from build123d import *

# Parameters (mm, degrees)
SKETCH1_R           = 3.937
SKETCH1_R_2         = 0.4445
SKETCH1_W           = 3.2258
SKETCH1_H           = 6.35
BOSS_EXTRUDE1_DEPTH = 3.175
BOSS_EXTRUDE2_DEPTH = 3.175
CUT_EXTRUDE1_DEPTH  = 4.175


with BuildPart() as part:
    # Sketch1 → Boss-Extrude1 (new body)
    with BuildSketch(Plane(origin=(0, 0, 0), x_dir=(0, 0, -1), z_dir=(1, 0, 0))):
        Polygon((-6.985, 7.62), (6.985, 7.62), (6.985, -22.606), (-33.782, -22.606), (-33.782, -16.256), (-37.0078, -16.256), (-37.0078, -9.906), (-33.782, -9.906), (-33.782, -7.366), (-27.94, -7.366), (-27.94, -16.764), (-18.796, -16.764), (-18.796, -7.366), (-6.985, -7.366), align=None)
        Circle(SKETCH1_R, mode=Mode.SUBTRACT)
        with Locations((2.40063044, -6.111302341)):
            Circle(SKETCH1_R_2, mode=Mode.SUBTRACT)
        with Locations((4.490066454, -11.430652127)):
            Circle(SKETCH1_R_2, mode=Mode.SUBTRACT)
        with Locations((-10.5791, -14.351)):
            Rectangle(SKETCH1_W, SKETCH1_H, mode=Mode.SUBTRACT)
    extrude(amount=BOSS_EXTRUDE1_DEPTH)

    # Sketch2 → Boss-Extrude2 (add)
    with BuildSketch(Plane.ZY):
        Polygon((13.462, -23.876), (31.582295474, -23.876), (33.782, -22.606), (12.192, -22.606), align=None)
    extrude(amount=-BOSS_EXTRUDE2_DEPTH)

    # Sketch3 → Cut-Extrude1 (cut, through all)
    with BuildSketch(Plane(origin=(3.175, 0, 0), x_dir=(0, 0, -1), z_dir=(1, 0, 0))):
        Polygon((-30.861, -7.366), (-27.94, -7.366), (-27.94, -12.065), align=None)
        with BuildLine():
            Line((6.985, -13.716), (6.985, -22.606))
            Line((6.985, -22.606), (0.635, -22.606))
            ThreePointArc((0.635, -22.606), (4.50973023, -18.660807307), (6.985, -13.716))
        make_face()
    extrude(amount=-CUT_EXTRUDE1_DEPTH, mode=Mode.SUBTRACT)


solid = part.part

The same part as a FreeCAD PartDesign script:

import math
import FreeCAD as App
import Part
import Sketcher
Q = App.Units.Quantity

doc = App.newDocument("Part")
params = doc.addObject("Spreadsheet::Sheet", "Params")
for row, (alias, value) in enumerate([
    ("sketch1_diameter", "0.31 in"),
    ("sketch1_diameter2", "0.035 in"),
    ("sketch1_width", "0.1 in"),
    ("sketch1_width2", "0.59 in"),
    ("sketch1_width3", "0.37 in"),
    ("pad1_length", "0.125 in"),
    ("sketch2_length", "0.1 in"),
    ("sketch2_height", "0.85 in"),
    ("pad2_length", "0.125 in"),
    ("sketch3_radius", "0.7 in"),
    ("sketch3_width", "0.35 in"),
    ("sketch3_height", "0.25 in"),
    ("sketch3_width2", "0.185 in"),
    ("sketch3_height2", "0.115 in"),
], start=1):
    params.set(f"A{row}", alias)
    params.set(f"B{row}", "=" + value)
    params.setAlias(f"B{row}", alias)

body = doc.addObject("PartDesign::Body", "Body")

# Sketch on YZ plane
sketch1 = doc.addObject("Sketcher::SketchObject", "Sketch")
body.addObject(sketch1)
sketch1.AttachmentSupport = (doc.YZ_Plane, [""])
sketch1.MapMode = "FlatFace"
sketch1.addGeometry([
    Part.LineSegment(App.Vector(7.62, -6.99, 0), App.Vector(7.62, 6.99, 0)),  # 0
    Part.LineSegment(App.Vector(7.62, 6.99, 0), App.Vector(-7.37, 6.99, 0)),  # 1
    Part.LineSegment(App.Vector(-7.37, 6.99, 0), App.Vector(-7.37, 18.8, 0)),  # 2
    Part.LineSegment(App.Vector(-7.37, 18.8, 0), App.Vector(-16.76, 18.8, 0)),  # 3
    Part.LineSegment(App.Vector(-16.76, 18.8, 0), App.Vector(-16.76, 27.94, 0)),  # 4
    Part.LineSegment(App.Vector(-16.76, 27.94, 0), App.Vector(-7.37, 27.94, 0)),  # 5
    Part.LineSegment(App.Vector(-7.37, 27.94, 0), App.Vector(-7.37, 33.78, 0)),  # 6
    Part.LineSegment(App.Vector(-7.37, 33.78, 0), App.Vector(-9.91, 33.78, 0)),  # 7
    Part.LineSegment(App.Vector(-9.91, 33.78, 0), App.Vector(-9.91, 37.01, 0)),  # 8
    Part.LineSegment(App.Vector(-9.91, 37.01, 0), App.Vector(-16.26, 37.01, 0)),  # 9
    Part.LineSegment(App.Vector(-16.26, 37.01, 0), App.Vector(-16.26, 33.78, 0)),  # 10
    Part.LineSegment(App.Vector(-16.26, 33.78, 0), App.Vector(-22.61, 33.78, 0)),  # 11
    Part.LineSegment(App.Vector(-22.61, 33.78, 0), App.Vector(-22.61, -6.99, 0)),  # 12
    Part.LineSegment(App.Vector(-22.61, -6.99, 0), App.Vector(7.62, -6.99, 0)),  # 13
    Part.Circle(App.Vector(-11.43, -4.49, 0), App.Vector(0, 0, 1), 0.44),  # 14
    Part.LineSegment(App.Vector(-17.53, 12.19, 0), App.Vector(-11.18, 12.19, 0)),  # 15
    Part.LineSegment(App.Vector(-11.18, 12.19, 0), App.Vector(-11.18, 8.97, 0)),  # 16
    Part.LineSegment(App.Vector(-11.18, 8.97, 0), App.Vector(-17.53, 8.97, 0)),  # 17
    Part.LineSegment(App.Vector(-17.53, 8.97, 0), App.Vector(-17.53, 12.19, 0)),  # 18
    Part.Circle(App.Vector(-6.11, -2.4, 0), App.Vector(0, 0, 1), 0.44),  # 19
    Part.Circle(App.Vector(0, 0, 0), App.Vector(0, 0, 1), 3.94),  # 20
], False)
sketch1.addConstraint([
    Sketcher.Constraint("Coincident", 0, 2, 1, 1),
    Sketcher.Constraint("Coincident", 1, 2, 2, 1),
    Sketcher.Constraint("Coincident", 2, 2, 3, 1),
    Sketcher.Constraint("Coincident", 3, 2, 4, 1),
    Sketcher.Constraint("Coincident", 4, 2, 5, 1),
    Sketcher.Constraint("Coincident", 5, 2, 6, 1),
    Sketcher.Constraint("Coincident", 6, 2, 7, 1),
    Sketcher.Constraint("Coincident", 7, 2, 8, 1),
    Sketcher.Constraint("Coincident", 8, 2, 9, 1),
    Sketcher.Constraint("Coincident", 9, 2, 10, 1),
    Sketcher.Constraint("Coincident", 10, 2, 11, 1),
    Sketcher.Constraint("Coincident", 11, 2, 12, 1),
    Sketcher.Constraint("Coincident", 12, 2, 13, 1),
    Sketcher.Constraint("Coincident", 13, 2, 0, 1),
    Sketcher.Constraint("Coincident", 15, 2, 16, 1),
    Sketcher.Constraint("Coincident", 16, 2, 17, 1),
    Sketcher.Constraint("Coincident", 17, 2, 18, 1),
    Sketcher.Constraint("Coincident", 18, 2, 15, 1),
    Sketcher.Constraint("Vertical", 0),
    Sketcher.Constraint("Horizontal", 1),
    Sketcher.Constraint("Vertical", 2),
    Sketcher.Constraint("Horizontal", 3),
    Sketcher.Constraint("Vertical", 4),
    Sketcher.Constraint("Horizontal", 5),
    Sketcher.Constraint("Vertical", 6),
    Sketcher.Constraint("Horizontal", 7),
    Sketcher.Constraint("Vertical", 8),
    Sketcher.Constraint("Horizontal", 9),
    Sketcher.Constraint("Vertical", 10),
    Sketcher.Constraint("Horizontal", 11),
    Sketcher.Constraint("Vertical", 12),
    Sketcher.Constraint("Horizontal", 13),
    Sketcher.Constraint("Horizontal", 15),
    Sketcher.Constraint("Vertical", 16),
    Sketcher.Constraint("Horizontal", 17),
    Sketcher.Constraint("Vertical", 18),
    Sketcher.Constraint("Coincident", 20, 3, -1, 1),
    Sketcher.Constraint("Equal", 14, 19),
    Sketcher.Constraint("Horizontal", 7, 2, 10, 2),
    Sketcher.Constraint("Vertical", 2, 2, 5, 2),
    Sketcher.Constraint("Equal", 9, 11),
    Sketcher.Constraint("Equal", 11, 15),
    Sketcher.Constraint("Equal", 10, 16),
    Sketcher.Constraint("Diameter", 20, Q("0.31 in")),
    Sketcher.Constraint("Diameter", 14, Q("0.035 in")),
    Sketcher.Constraint("DistanceX", 7, 2, 7, 1, Q("0.1 in")),
    Sketcher.Constraint("DistanceX", 1, 2, 1, 1, Q("0.59 in")),
    Sketcher.Constraint("DistanceX", 3, 2, 3, 1, Q("0.37 in")),
    Sketcher.Constraint("DistanceX", 9, 2, 9, 1, Q("0.25 in")),
    Sketcher.Constraint("DistanceY", 0, 1, 0, 2, Q("0.55 in")),
    Sketcher.Constraint("DistanceY", 4, 1, 4, 2, Q("0.36 in")),
    Sketcher.Constraint("DistanceY", 6, 1, 6, 2, Q("0.23 in")),
    Sketcher.Constraint("DistanceX", -1, 1, 0, 2, Q("0.3 in")),
    Sketcher.Constraint("DistanceY", -1, 1, 4, 2, Q("1.1 in")),
    Sketcher.Constraint("DistanceX", 17, 2, 1, 2, Q("0.4 in")),
    Sketcher.Constraint("DistanceY", 2, 1, 2, 2, Q("0.465 in")),
    Sketcher.Constraint("DistanceY", 8, 1, 8, 2, Q("0.127 in")),
    Sketcher.Constraint("DistanceY", -1, 1, 15, 2, Q("0.48 in")),
    Sketcher.Constraint("DistanceY", 19, 3, -1, 1, 2.40063),
    Sketcher.Constraint("DistanceX", 14, 3, 19, 3, 5.31935),
    Sketcher.Constraint("DistanceX", 14, 3, -1, 1, 11.430652),
    Sketcher.Constraint("DistanceY", 14, 3, -1, 1, 4.490066),
])
sketch1.setExpression("Constraints[43]", "Params.sketch1_diameter")
sketch1.setExpression("Constraints[44]", "Params.sketch1_diameter2")
sketch1.setExpression("Constraints[45]", "Params.sketch1_width")
sketch1.setExpression("Constraints[46]", "Params.sketch1_width2")
sketch1.setExpression("Constraints[47]", "Params.sketch1_width3")
pad1 = doc.addObject("PartDesign::Pad", "Pad")
body.addObject(pad1)
pad1.Profile = sketch1
pad1.setExpression("Length", "Params.pad1_length")

# Sketch on YZ plane
sketch2 = doc.addObject("Sketcher::SketchObject", "Sketch001")
body.addObject(sketch2)
sketch2.AttachmentSupport = (doc.YZ_Plane, [""])
sketch2.MapMode = "FlatFace"
sketch2.addGeometry([
    Part.LineSegment(App.Vector(-23.9, 13.5, 0), App.Vector(-23.9, 31.6, 0)),
    Part.LineSegment(App.Vector(-23.9, 31.6, 0), App.Vector(-22.6, 33.8, 0)),
    Part.LineSegment(App.Vector(-22.6, 33.8, 0), App.Vector(-22.6, 12.2, 0)),
    Part.LineSegment(App.Vector(-22.6, 12.2, 0), App.Vector(-23.9, 13.5, 0)),
], False)
sketch2.addConstraint([
    Sketcher.Constraint("Coincident", 0, 2, 1, 1),
    Sketcher.Constraint("Coincident", 1, 2, 2, 1),
    Sketcher.Constraint("Coincident", 2, 2, 3, 1),
    Sketcher.Constraint("Coincident", 3, 2, 0, 1),
    Sketcher.Constraint("Vertical", 0),
    Sketcher.Constraint("Vertical", 2),
    Sketcher.Constraint("Angle", 1, Q("60 deg")),
    Sketcher.Constraint("Angle", 3, Q("135 deg")),
    Sketcher.Constraint("Distance", 1, Q("0.1 in")),
    Sketcher.Constraint("DistanceY", 2, 2, 2, 1, Q("0.85 in")),
    Sketcher.Constraint("DistanceX", 0, 2, -1, 1, Q("0.94 in")),
    Sketcher.Constraint("DistanceY", -1, 1, 1, 2, Q("1.33 in")),
])
sketch2.setExpression("Constraints[8]", "Params.sketch2_length")
sketch2.setExpression("Constraints[9]", "Params.sketch2_height")
pad2 = doc.addObject("PartDesign::Pad", "Pad001")
body.addObject(pad2)
pad2.Profile = sketch2
pad2.setExpression("Length", "Params.pad2_length")

# Sketch on YZ plane
sketch3 = doc.addObject("Sketcher::SketchObject", "Sketch002")
body.addObject(sketch3)
sketch3.AttachmentSupport = (doc.YZ_Plane, [""])
sketch3.MapMode = "FlatFace"
sketch3.AttachmentOffset = App.Placement(App.Vector(0, 0, 0.125 * 25.4), App.Rotation())
sketch3.addGeometry([
    Part.LineSegment(App.Vector(-7.4, 27.9, 0), App.Vector(-7.4, 30.9, 0)),  # 0
    Part.LineSegment(App.Vector(-7.4, 30.9, 0), App.Vector(-12.1, 27.9, 0)),  # 1
    Part.LineSegment(App.Vector(-12.1, 27.9, 0), App.Vector(-7.4, 27.9, 0)),  # 2
    Part.LineSegment(App.Vector(-22.6, -7, 0), App.Vector(-13.7, -7, 0)),  # 3
    Part.ArcOfCircle(Part.Circle(App.Vector(-8.3, 10, 0), App.Vector(0, 0, 1), 17.8), math.radians(-143), math.radians(-108)),  # 4
    Part.LineSegment(App.Vector(-22.6, -0.6, 0), App.Vector(-22.6, -7, 0)),  # 5
], False)
sketch3.addConstraint([
    Sketcher.Constraint("Coincident", 0, 2, 1, 1),
    Sketcher.Constraint("Coincident", 1, 2, 2, 1),
    Sketcher.Constraint("Coincident", 2, 2, 0, 1),
    Sketcher.Constraint("Coincident", 3, 2, 4, 2),
    Sketcher.Constraint("Coincident", 4, 1, 5, 1),
    Sketcher.Constraint("Coincident", 5, 2, 3, 1),
    Sketcher.Constraint("Vertical", 0),
    Sketcher.Constraint("Horizontal", 2),
    Sketcher.Constraint("Horizontal", 3),
    Sketcher.Constraint("Vertical", 5),
    Sketcher.Constraint("Radius", 4, Q("0.7 in")),
    Sketcher.Constraint("DistanceX", 3, 1, 3, 2, Q("0.35 in")),
    Sketcher.Constraint("DistanceY", 5, 2, 5, 1, Q("0.25 in")),
    Sketcher.Constraint("DistanceY", -1, 1, 1, 2, Q("1.1 in")),
    Sketcher.Constraint("DistanceX", 4, 1, 2, 2, Q("0.6 in")),
    Sketcher.Constraint("DistanceX", 2, 1, 2, 2, Q("0.185 in")),
    Sketcher.Constraint("DistanceY", 0, 1, 0, 2, Q("0.115 in")),
    Sketcher.Constraint("DistanceX", 0, 2, -1, 1, Q("0.29 in")),
    Sketcher.Constraint("DistanceY", 3, 2, 0, 2, Q("1.49 in")),
])
sketch3.setExpression("Constraints[10]", "Params.sketch3_radius")
sketch3.setExpression("Constraints[11]", "Params.sketch3_width")
sketch3.setExpression("Constraints[12]", "Params.sketch3_height")
sketch3.setExpression("Constraints[15]", "Params.sketch3_width2")
sketch3.setExpression("Constraints[16]", "Params.sketch3_height2")
pocket1 = doc.addObject("PartDesign::Pocket", "Pocket")
body.addObject(pocket1)
pocket1.Profile = sketch3
pocket1.Type = "ThroughAll"

doc.recompute()
